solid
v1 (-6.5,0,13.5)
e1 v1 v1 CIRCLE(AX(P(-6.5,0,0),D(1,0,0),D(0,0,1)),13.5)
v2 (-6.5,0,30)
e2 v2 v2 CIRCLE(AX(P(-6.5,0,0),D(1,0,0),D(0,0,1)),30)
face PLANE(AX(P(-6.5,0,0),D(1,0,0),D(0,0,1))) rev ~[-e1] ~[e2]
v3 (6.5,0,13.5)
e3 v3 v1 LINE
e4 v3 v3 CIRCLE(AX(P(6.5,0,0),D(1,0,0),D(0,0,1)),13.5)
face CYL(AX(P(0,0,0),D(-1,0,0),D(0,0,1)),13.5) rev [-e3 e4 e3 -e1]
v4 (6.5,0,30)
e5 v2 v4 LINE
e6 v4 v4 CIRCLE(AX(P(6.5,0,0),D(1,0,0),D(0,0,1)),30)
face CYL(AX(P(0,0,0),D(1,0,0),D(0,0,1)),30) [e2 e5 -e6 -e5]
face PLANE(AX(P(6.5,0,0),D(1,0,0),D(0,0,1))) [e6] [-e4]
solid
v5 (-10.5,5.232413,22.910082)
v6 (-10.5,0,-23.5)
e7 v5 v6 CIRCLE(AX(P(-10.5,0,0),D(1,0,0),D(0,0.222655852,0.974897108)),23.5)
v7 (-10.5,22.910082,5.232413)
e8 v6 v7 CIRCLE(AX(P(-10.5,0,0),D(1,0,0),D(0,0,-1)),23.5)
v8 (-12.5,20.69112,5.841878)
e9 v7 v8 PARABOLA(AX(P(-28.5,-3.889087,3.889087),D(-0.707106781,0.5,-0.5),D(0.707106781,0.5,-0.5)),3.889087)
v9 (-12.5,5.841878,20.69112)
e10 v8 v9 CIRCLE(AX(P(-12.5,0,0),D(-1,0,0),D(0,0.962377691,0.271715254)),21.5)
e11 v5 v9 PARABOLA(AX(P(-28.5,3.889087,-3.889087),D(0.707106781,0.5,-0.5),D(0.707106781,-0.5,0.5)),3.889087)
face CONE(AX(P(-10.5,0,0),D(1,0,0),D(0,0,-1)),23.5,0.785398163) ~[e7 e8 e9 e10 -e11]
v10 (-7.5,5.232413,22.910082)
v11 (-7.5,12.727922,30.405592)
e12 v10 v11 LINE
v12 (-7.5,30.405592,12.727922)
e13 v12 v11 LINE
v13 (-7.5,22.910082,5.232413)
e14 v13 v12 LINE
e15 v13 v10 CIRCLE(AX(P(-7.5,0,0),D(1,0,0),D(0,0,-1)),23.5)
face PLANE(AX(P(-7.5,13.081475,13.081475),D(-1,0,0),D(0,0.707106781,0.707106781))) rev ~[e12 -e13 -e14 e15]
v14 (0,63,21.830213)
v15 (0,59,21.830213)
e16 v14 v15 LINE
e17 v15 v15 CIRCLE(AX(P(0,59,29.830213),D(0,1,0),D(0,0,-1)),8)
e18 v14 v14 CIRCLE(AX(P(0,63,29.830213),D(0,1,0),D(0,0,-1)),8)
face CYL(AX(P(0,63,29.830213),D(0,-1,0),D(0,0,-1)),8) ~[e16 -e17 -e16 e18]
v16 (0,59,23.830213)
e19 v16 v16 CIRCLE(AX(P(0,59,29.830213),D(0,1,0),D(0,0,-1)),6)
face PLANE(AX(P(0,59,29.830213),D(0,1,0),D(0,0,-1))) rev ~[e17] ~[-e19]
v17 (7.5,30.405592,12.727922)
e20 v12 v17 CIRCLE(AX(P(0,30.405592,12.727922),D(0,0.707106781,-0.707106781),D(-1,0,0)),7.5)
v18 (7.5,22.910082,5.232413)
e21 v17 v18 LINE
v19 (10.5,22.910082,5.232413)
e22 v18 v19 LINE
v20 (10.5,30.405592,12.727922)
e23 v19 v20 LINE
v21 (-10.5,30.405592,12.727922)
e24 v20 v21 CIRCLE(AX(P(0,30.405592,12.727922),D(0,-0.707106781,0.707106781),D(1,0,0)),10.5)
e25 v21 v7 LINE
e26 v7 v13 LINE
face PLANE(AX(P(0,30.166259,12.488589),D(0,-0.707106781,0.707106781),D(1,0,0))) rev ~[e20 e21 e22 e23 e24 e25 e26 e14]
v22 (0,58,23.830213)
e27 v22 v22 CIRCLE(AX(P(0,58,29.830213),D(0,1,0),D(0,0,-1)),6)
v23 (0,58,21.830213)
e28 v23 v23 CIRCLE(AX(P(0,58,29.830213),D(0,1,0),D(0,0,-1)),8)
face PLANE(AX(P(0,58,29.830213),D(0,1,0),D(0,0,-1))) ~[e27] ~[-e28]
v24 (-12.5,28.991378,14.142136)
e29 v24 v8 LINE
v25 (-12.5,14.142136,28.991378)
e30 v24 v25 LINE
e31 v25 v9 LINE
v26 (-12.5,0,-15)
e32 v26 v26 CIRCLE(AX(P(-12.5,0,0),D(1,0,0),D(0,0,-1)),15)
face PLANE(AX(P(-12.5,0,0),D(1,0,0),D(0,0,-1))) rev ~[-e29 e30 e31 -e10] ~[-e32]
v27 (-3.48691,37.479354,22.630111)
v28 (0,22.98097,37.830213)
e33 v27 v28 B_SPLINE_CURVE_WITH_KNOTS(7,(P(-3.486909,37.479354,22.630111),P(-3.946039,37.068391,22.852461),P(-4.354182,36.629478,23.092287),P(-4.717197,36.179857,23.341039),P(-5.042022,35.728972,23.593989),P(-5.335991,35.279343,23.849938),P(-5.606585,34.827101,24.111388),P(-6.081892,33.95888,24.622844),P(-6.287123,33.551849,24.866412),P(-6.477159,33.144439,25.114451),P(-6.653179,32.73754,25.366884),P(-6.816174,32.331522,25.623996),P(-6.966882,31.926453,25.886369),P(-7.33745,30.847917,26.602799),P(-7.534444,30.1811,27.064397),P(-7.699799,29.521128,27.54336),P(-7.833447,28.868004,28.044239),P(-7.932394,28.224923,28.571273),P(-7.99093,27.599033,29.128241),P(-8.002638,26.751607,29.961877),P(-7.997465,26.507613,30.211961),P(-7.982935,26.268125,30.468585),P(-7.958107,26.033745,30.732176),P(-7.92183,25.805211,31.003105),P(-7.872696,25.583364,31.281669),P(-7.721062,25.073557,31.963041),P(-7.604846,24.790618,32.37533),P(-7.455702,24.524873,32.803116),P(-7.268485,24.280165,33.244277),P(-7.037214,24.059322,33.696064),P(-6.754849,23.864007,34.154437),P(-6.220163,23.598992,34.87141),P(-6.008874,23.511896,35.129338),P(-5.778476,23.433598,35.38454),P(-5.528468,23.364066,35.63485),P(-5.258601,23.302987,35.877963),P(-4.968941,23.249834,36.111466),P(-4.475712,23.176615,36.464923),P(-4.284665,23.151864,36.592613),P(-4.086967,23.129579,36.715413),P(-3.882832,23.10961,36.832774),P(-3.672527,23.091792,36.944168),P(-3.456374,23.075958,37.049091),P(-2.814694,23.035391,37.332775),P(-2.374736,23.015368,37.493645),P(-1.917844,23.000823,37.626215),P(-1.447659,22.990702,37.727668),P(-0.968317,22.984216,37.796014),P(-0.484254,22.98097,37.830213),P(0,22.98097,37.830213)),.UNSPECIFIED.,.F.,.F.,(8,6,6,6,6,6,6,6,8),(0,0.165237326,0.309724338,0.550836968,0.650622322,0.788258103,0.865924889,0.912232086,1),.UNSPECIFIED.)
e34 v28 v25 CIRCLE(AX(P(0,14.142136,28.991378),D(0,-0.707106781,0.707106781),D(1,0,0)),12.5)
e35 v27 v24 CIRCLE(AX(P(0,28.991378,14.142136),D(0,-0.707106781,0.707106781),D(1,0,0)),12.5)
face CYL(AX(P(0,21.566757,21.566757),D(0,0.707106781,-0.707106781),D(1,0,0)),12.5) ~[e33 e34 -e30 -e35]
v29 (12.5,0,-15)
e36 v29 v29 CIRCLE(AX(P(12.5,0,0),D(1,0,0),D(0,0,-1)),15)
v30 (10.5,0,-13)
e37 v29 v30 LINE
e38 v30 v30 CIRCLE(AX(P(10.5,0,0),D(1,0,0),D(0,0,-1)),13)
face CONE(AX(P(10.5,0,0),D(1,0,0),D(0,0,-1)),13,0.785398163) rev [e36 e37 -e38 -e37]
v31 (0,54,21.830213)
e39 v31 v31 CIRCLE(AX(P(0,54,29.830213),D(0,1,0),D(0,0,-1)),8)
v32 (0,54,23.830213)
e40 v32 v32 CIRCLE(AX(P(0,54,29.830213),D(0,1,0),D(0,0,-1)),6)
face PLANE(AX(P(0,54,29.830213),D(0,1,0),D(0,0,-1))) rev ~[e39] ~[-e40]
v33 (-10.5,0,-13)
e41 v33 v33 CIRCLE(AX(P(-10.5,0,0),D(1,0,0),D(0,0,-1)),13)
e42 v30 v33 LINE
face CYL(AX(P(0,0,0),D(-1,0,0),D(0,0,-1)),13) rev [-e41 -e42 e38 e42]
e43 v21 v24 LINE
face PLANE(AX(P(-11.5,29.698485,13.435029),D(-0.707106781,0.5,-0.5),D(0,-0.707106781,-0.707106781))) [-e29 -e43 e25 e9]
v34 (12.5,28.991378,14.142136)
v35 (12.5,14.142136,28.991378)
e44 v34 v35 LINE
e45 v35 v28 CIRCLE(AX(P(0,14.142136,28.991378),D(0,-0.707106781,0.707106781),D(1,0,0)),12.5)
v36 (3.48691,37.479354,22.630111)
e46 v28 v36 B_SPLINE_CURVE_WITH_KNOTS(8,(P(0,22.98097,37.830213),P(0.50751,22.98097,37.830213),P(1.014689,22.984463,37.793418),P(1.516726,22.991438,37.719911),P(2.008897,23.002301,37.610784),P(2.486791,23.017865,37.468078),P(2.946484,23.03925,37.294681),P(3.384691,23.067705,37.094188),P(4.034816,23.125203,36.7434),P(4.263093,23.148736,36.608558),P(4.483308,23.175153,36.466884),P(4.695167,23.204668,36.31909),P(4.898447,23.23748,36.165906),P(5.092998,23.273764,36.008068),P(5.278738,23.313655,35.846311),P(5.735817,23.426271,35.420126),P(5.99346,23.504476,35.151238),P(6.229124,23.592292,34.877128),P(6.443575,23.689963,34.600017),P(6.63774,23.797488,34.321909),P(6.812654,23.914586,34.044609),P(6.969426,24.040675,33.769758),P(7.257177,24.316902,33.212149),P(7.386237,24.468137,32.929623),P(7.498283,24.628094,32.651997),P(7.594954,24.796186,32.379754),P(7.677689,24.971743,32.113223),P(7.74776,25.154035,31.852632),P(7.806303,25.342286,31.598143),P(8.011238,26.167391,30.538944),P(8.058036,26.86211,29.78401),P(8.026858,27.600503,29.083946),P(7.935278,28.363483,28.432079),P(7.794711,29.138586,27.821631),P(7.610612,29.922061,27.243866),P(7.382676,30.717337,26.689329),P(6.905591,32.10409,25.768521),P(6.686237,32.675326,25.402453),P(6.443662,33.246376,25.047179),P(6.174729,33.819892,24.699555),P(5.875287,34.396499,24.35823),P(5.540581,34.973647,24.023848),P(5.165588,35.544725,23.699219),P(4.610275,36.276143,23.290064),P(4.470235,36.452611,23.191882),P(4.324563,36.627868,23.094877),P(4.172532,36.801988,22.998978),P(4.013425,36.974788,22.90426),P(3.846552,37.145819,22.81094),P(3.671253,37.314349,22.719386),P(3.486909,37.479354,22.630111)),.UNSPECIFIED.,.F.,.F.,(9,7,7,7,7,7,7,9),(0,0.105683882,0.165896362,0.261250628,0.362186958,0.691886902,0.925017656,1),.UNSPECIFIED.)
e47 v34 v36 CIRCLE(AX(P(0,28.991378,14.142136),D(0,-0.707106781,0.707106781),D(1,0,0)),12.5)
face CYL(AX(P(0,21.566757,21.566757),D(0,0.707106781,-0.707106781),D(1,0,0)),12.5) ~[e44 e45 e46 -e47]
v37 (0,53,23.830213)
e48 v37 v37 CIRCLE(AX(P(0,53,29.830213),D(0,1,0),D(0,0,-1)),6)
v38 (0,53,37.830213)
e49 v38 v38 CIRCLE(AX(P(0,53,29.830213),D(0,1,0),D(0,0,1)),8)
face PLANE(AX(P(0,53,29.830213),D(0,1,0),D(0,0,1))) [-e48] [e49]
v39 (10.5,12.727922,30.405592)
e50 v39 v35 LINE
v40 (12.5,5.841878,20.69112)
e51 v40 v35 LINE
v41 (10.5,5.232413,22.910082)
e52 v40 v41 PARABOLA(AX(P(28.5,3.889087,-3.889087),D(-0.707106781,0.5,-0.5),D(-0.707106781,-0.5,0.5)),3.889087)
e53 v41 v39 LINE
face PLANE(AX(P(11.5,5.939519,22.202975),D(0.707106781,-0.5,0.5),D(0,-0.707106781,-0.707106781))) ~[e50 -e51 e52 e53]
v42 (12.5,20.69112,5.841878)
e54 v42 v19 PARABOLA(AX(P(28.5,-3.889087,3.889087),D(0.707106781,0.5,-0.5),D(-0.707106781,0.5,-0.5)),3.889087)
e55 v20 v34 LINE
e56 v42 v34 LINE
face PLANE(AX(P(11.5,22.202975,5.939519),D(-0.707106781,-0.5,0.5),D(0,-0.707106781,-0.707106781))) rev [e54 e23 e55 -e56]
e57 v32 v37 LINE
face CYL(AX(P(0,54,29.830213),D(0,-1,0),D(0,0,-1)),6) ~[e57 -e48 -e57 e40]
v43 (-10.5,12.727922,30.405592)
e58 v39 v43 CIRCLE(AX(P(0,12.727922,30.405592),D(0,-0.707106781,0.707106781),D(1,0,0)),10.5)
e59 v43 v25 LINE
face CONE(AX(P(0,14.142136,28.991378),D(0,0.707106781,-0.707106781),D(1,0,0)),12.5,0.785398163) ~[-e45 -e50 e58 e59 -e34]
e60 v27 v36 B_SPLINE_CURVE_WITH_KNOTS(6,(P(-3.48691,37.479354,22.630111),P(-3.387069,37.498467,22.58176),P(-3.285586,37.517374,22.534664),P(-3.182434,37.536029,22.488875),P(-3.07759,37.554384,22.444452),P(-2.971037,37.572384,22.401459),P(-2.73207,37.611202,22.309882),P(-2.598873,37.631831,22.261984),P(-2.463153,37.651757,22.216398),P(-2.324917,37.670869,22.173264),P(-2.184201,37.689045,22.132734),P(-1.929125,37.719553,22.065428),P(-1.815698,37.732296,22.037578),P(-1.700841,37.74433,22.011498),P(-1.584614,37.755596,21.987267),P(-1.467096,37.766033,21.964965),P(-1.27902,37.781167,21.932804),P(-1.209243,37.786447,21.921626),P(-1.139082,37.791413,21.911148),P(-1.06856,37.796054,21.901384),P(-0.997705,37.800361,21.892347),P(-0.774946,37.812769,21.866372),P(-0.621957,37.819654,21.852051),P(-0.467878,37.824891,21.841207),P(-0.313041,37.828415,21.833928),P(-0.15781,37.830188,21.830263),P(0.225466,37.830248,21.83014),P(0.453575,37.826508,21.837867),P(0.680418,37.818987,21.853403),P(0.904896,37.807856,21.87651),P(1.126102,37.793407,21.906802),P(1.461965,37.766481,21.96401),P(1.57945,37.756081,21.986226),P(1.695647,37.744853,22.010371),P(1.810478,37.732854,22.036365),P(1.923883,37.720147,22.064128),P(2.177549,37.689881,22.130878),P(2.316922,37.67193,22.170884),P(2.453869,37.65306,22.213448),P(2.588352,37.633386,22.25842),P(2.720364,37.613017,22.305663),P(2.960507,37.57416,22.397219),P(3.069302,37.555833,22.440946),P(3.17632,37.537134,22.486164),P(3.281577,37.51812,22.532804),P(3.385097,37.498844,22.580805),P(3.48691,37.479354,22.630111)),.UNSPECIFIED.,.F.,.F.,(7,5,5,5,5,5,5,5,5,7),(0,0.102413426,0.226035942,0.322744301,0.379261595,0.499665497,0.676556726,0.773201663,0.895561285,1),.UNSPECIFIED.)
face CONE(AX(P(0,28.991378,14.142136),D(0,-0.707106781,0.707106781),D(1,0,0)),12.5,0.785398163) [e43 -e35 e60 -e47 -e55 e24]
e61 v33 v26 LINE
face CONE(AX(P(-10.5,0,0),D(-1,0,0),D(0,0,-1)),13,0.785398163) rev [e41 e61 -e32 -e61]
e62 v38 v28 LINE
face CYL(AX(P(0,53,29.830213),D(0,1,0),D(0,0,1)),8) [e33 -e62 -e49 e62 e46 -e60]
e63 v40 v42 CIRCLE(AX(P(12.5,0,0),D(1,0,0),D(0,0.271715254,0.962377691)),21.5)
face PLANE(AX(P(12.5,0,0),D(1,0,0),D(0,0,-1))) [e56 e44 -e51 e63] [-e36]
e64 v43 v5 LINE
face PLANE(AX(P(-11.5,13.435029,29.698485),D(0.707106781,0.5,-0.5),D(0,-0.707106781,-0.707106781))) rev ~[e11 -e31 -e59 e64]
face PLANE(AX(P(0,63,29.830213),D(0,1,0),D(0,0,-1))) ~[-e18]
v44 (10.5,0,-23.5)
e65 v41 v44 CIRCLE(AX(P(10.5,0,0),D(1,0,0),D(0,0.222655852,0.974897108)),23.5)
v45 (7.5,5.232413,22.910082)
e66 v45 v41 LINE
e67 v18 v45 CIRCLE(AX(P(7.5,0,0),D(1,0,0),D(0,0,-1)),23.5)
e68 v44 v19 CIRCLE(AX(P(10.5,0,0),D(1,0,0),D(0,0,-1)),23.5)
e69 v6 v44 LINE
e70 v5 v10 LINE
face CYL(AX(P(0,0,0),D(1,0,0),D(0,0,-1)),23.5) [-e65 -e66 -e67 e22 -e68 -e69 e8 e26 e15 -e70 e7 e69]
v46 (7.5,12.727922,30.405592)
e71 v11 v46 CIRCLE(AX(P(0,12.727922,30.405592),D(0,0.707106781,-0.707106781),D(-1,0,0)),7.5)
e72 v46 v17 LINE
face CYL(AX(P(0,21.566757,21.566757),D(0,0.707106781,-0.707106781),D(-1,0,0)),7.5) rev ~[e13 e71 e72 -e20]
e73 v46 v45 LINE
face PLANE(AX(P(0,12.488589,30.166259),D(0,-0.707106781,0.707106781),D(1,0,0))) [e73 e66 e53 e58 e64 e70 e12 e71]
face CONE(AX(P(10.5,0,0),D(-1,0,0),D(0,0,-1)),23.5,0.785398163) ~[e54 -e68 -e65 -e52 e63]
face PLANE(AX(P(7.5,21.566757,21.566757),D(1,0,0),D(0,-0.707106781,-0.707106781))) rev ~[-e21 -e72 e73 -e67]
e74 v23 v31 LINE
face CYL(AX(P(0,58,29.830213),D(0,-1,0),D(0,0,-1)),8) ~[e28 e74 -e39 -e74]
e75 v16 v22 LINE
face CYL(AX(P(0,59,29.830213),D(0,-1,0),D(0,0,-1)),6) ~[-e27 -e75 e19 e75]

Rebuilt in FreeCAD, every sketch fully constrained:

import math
import FreeCAD as App
import Part
import Sketcher
from FreeCAD import Vector
Q = App.Units.Quantity


def edges_at(feature, points):
    """Names of the edges that pass closest to the given points."""
    edges = feature.Shape.Edges
    near = lambda p: min(range(len(edges)), key=lambda i: edges[i].distToShape(Part.Vertex(*p))[0])
    return sorted({f"Edge{near(p) + 1}" for p in points})


def add_polygon(sketch, points):
    """Adds a closed chain of lines whose ends are joined by coincident constraints."""
    first, n = sketch.GeometryCount, len(points)
    for a, b in zip(points, points[1:] + points[:1]):
        sketch.addGeometry(Part.LineSegment(App.Vector(*a, 0), App.Vector(*b, 0)), False)
    for i in range(n):
        sketch.addConstraint(Sketcher.Constraint("Coincident", first + i, 2, first + (i + 1) % n, 1))

doc = App.newDocument("Part")
params = doc.addObject("Spreadsheet::Sheet", "Params")
for row, (alias, value) in enumerate([
    ("sketch1_diameter", "60 mm"),
    ("sketch1_diameter2", "27 mm"),
    ("pad1_length", "13 mm"),
    ("sketch2_diameter", "47 mm"),
    ("sketch2_diameter2", "26 mm"),
    ("pad2_length", "25 mm"),
    ("sketch3_radius", "7.5 mm"),
    ("sketch3_radius2", "12.5 mm"),
    ("sketch3_height", "12 mm"),
    ("pad3_length", "25 mm"),
    ("chamfer_size", "2 mm"),
    ("sketch4_diameter", "16 mm"),
    ("sketch5_width", "10 mm"),
    ("sketch5_width2", "1 mm"),
    ("sketch5_height", "6 mm"),
    ("sketch5_height2", "2 mm"),
    ("revolution_angle", "360 deg"),
], start=1):
    params.set(f"A{row}", alias)
    params.set(f"B{row}", "=" + value)
    params.setAlias(f"B{row}", alias)

body = doc.addObject("PartDesign::Body", "Body")

# Sketch on YZ plane
sketch1 = doc.addObject("Sketcher::SketchObject", "Sketch")
body.addObject(sketch1)
sketch1.AttachmentSupport = (doc.YZ_Plane, [""])
sketch1.MapMode = "FlatFace"
sketch1.addGeometry(Part.Circle(Vector(0, 0, 0), Vector(0, 0, 1), 30), False)
sketch1.addGeometry(Part.Circle(Vector(0, 0, 0), Vector(0, 0, 1), 14), False)
sketch1.addConstraint(Sketcher.Constraint("Coincident", 0, 3, -1, 1))
sketch1.addConstraint(Sketcher.Constraint("Coincident", 1, 3, -1, 1))
sketch1.addConstraint(Sketcher.Constraint("Diameter", 0, Q("60 mm")))
sketch1.addConstraint(Sketcher.Constraint("Diameter", 1, Q("27 mm")))
sketch1.setExpression("Constraints[2]", "Params.sketch1_diameter")
sketch1.setExpression("Constraints[3]", "Params.sketch1_diameter2")
pad1 = doc.addObject("PartDesign::Pad", "Pad")
body.addObject(pad1)
pad1.Profile = sketch1
pad1.setExpression("Length", "Params.pad1_length")
pad1.Midplane = True
body2 = doc.addObject("PartDesign::Body", "Body001")

# Sketch on YZ plane
sketch2 = doc.addObject("Sketcher::SketchObject", "Sketch001")
body2.addObject(sketch2)
sketch2.AttachmentSupport = (doc.getObject("YZ_Plane001"), [""])
sketch2.MapMode = "FlatFace"
sketch2.addGeometry(Part.Circle(Vector(0, 0, 0), Vector(0, 0, 1), 24), False)
sketch2.addGeometry(Part.Circle(Vector(0, 0, 0), Vector(0, 0, 1), 13), False)
sketch2.addConstraint(Sketcher.Constraint("Coincident", 0, 3, -1, 1))
sketch2.addConstraint(Sketcher.Constraint("Coincident", 1, 3, -1, 1))
sketch2.addConstraint(Sketcher.Constraint("Diameter", 0, Q("47 mm")))
sketch2.addConstraint(Sketcher.Constraint("Diameter", 1, Q("26 mm")))
sketch2.setExpression("Constraints[2]", "Params.sketch2_diameter")
sketch2.setExpression("Constraints[3]", "Params.sketch2_diameter2")
pad2 = doc.addObject("PartDesign::Pad", "Pad001")
body2.addObject(pad2)
pad2.Profile = sketch2
pad2.setExpression("Length", "Params.pad2_length")
pad2.Midplane = True

# Sketch on an angled plane
sketch3 = doc.addObject("Sketcher::SketchObject", "Sketch002")
body2.addObject(sketch3)
sketch3.Placement = App.Placement(Vector(0, 0, 0), App.Rotation(Vector(-1, 0, 0), Vector(0, 0.707106781, 0.707106781), Vector(0, 0.707106781, -0.707106781), "ZXY"))
sketch3.addGeometry(Part.LineSegment(Vector(-12, 30, 0), Vector(-12, 18, 0)), False)
sketch3.addGeometry(Part.LineSegment(Vector(-12, 18, 0), Vector(-8, 18, 0)), False)
sketch3.addGeometry(Part.LineSegment(Vector(-8, 18, 0), Vector(-8, 30, 0)), False)
sketch3.addGeometry(Part.ArcOfCircle(Part.Circle(Vector(0, 30, 0), Vector(0, 0, 1), 8), math.radians(0), math.radians(180)), False)
sketch3.addGeometry(Part.LineSegment(Vector(8, 30, 0), Vector(8, 18, 0)), False)
sketch3.addGeometry(Part.LineSegment(Vector(8, 18, 0), Vector(12, 18, 0)), False)
sketch3.addGeometry(Part.LineSegment(Vector(12, 18, 0), Vector(12, 30, 0)), False)
sketch3.addGeometry(Part.ArcOfCircle(Part.Circle(Vector(0, 30, 0), Vector(0, 0, 1), 12), math.radians(0), math.radians(180)), False)
sketch3.addConstraint(Sketcher.Constraint("Coincident", 0, 2, 1, 1))
sketch3.addConstraint(Sketcher.Constraint("Coincident", 1, 2, 2, 1))
sketch3.addConstraint(Sketcher.Constraint("Tangent", 2, 2, 3, 2))
sketch3.addConstraint(Sketcher.Constraint("Tangent", 3, 1, 4, 1))
sketch3.addConstraint(Sketcher.Constraint("Coincident", 4, 2, 5, 1))
sketch3.addConstraint(Sketcher.Constraint("Coincident", 5, 2, 6, 1))
sketch3.addConstraint(Sketcher.Constraint("Tangent", 6, 2, 7, 1))
sketch3.addConstraint(Sketcher.Constraint("Tangent", 7, 2, 0, 1))
sketch3.addConstraint(Sketcher.Constraint("Vertical", 0))
sketch3.addConstraint(Sketcher.Constraint("Horizontal", 1))
sketch3.addConstraint(Sketcher.Constraint("Vertical", 2))
sketch3.addConstraint(Sketcher.Constraint("Vertical", 4))
sketch3.addConstraint(Sketcher.Constraint("Horizontal", 5))
sketch3.addConstraint(Sketcher.Constraint("Vertical", 6))
sketch3.addConstraint(Sketcher.Constraint("Coincident", 7, 3, 3, 3))
sketch3.addConstraint(Sketcher.Constraint("Symmetric", 1, 2, 4, 2, -2))
sketch3.addConstraint(Sketcher.Constraint("Radius", 3, Q("7.5 mm")))
sketch3.addConstraint(Sketcher.Constraint("Radius", 7, Q("12.5 mm")))
sketch3.addConstraint(Sketcher.Constraint("DistanceY", 0, 2, 0, 1, Q("12 mm")))
sketch3.addConstraint(Sketcher.Constraint("DistanceY", -1, 1, 3, 3, Q("30.5 mm")))
sketch3.setExpression("Constraints[16]", "Params.sketch3_radius")
sketch3.setExpression("Constraints[17]", "Params.sketch3_radius2")
sketch3.setExpression("Constraints[18]", "Params.sketch3_height")
pad3 = doc.addObject("PartDesign::Pad", "Pad002")
body2.addObject(pad3)
pad3.Profile = sketch3
pad3.setExpression("Length", "Params.pad3_length")
pad3.Midplane = True
doc.recompute()

chamfer = doc.addObject("PartDesign::Chamfer", "Chamfer")
body2.addObject(chamfer)
chamfer.Base = (pad3, edges_at(pad3, [
    (12.5, -23.352, 2.633),
    (-12.5, -23.352, 2.633),
    (-12.5, 26.658, 8.98),
    (0, 39.244, 21.567),
    (12.5, 26.658, 8.98),
    (-12.5, 8.98, 26.658),
    (0, 21.567, 39.244),
    (12.5, 8.98, 26.658),
    (-12.5, 0, 13),
    (12.5, 0, 13),
]))
chamfer.setExpression("Size", "Params.chamfer_size")

# Sketch on XZ plane
sketch4 = doc.addObject("Sketcher::SketchObject", "Sketch003")
body2.addObject(sketch4)
sketch4.AttachmentSupport = (doc.getObject("XZ_Plane001"), [""])
sketch4.MapMode = "FlatFace"
sketch4.AttachmentOffset = App.Placement(Vector(0, 0, -53), App.Rotation())
sketch4.addGeometry(Part.Circle(Vector(0, 30, 0), Vector(0, 0, 1), 8), False)
sketch4.addConstraint(Sketcher.Constraint("PointOnObject", 0, 3, -2))
sketch4.addConstraint(Sketcher.Constraint("Diameter", 0, Q("16 mm")))
sketch4.addConstraint(Sketcher.Constraint("DistanceY", -1, 1, 0, 3, Q("29.830213 mm")))
sketch4.setExpression("Constraints[1]", "Params.sketch4_diameter")
pad4 = doc.addObject("PartDesign::Pad", "Pad003")
body2.addObject(pad4)
pad4.Profile = sketch4
pad4.Type = "UpToFirst"

# Sketch on YZ plane
sketch5 = doc.addObject("Sketcher::SketchObject", "Sketch004")
body2.addObject(sketch5)
sketch5.AttachmentSupport = (doc.getObject("YZ_Plane001"), [""])
sketch5.MapMode = "FlatFace"
add_polygon(sketch5, [(63, 29.8), (53, 29.8), (53, 23.8), (54, 23.8), (54, 21.8), (58, 21.8), (58, 23.8), (59, 23.8), (59, 21.8), (63, 21.8)])  # lines 0-9
sketch5.addGeometry(Part.LineSegment(Vector(53, 29.8, 0), Vector(63, 29.8, 0)), True)  # axis
sketch5.addConstraint(Sketcher.Constraint("Horizontal", 0))
sketch5.addConstraint(Sketcher.Constraint("Vertical", 1))
sketch5.addConstraint(Sketcher.Constraint("Horizontal", 2))
sketch5.addConstraint(Sketcher.Constraint("Vertical", 3))
sketch5.addConstraint(Sketcher.Constraint("Horizontal", 4))
sketch5.addConstraint(Sketcher.Constraint("Vertical", 5))
sketch5.addConstraint(Sketcher.Constraint("Horizontal", 6))
sketch5.addConstraint(Sketcher.Constraint("Vertical", 7))
sketch5.addConstraint(Sketcher.Constraint("Horizontal", 8))
sketch5.addConstraint(Sketcher.Constraint("Vertical", 9))
sketch5.addConstraint(Sketcher.Constraint("Horizontal", 10))
sketch5.addConstraint(Sketcher.Constraint("Coincident", 10, 1, 0, 2))
sketch5.addConstraint(Sketcher.Constraint("Horizontal", 2, 2, 5, 2))
sketch5.addConstraint(Sketcher.Constraint("Horizontal", 4, 2, 7, 2))
sketch5.addConstraint(Sketcher.Constraint("Vertical", 8, 2, 10, 2))
sketch5.addConstraint(Sketcher.Constraint("Equal", 2, 6))
sketch5.addConstraint(Sketcher.Constraint("Equal", 4, 8))
sketch5.addConstraint(Sketcher.Constraint("DistanceX", 0, 2, 0, 1, Q("10 mm")))
sketch5.addConstraint(Sketcher.Constraint("DistanceX", 2, 1, 2, 2, Q("1 mm")))
sketch5.addConstraint(Sketcher.Constraint("DistanceY", 1, 2, 1, 1, Q("6 mm")))
sketch5.addConstraint(Sketcher.Constraint("DistanceY", 3, 2, 3, 1, Q("2 mm")))
sketch5.addConstraint(Sketcher.Constraint("DistanceX", -1, 1, 0, 2, Q("53 mm")))
sketch5.addConstraint(Sketcher.Constraint("DistanceY", -1, 1, 0, 2, Q("29.830213 mm")))
sketch5.setExpression("Constraints[27]", "Params.sketch5_width")
sketch5.setExpression("Constraints[28]", "Params.sketch5_width2")
sketch5.setExpression("Constraints[29]", "Params.sketch5_height")
sketch5.setExpression("Constraints[30]", "Params.sketch5_height2")
revolution = doc.addObject("PartDesign::Revolution", "Revolution")
body2.addObject(revolution)
revolution.Profile = sketch5
revolution.ReferenceAxis = (sketch5, ["Axis0"])
revolution.setExpression("Angle", "Params.revolution_angle")

doc.recompute()
